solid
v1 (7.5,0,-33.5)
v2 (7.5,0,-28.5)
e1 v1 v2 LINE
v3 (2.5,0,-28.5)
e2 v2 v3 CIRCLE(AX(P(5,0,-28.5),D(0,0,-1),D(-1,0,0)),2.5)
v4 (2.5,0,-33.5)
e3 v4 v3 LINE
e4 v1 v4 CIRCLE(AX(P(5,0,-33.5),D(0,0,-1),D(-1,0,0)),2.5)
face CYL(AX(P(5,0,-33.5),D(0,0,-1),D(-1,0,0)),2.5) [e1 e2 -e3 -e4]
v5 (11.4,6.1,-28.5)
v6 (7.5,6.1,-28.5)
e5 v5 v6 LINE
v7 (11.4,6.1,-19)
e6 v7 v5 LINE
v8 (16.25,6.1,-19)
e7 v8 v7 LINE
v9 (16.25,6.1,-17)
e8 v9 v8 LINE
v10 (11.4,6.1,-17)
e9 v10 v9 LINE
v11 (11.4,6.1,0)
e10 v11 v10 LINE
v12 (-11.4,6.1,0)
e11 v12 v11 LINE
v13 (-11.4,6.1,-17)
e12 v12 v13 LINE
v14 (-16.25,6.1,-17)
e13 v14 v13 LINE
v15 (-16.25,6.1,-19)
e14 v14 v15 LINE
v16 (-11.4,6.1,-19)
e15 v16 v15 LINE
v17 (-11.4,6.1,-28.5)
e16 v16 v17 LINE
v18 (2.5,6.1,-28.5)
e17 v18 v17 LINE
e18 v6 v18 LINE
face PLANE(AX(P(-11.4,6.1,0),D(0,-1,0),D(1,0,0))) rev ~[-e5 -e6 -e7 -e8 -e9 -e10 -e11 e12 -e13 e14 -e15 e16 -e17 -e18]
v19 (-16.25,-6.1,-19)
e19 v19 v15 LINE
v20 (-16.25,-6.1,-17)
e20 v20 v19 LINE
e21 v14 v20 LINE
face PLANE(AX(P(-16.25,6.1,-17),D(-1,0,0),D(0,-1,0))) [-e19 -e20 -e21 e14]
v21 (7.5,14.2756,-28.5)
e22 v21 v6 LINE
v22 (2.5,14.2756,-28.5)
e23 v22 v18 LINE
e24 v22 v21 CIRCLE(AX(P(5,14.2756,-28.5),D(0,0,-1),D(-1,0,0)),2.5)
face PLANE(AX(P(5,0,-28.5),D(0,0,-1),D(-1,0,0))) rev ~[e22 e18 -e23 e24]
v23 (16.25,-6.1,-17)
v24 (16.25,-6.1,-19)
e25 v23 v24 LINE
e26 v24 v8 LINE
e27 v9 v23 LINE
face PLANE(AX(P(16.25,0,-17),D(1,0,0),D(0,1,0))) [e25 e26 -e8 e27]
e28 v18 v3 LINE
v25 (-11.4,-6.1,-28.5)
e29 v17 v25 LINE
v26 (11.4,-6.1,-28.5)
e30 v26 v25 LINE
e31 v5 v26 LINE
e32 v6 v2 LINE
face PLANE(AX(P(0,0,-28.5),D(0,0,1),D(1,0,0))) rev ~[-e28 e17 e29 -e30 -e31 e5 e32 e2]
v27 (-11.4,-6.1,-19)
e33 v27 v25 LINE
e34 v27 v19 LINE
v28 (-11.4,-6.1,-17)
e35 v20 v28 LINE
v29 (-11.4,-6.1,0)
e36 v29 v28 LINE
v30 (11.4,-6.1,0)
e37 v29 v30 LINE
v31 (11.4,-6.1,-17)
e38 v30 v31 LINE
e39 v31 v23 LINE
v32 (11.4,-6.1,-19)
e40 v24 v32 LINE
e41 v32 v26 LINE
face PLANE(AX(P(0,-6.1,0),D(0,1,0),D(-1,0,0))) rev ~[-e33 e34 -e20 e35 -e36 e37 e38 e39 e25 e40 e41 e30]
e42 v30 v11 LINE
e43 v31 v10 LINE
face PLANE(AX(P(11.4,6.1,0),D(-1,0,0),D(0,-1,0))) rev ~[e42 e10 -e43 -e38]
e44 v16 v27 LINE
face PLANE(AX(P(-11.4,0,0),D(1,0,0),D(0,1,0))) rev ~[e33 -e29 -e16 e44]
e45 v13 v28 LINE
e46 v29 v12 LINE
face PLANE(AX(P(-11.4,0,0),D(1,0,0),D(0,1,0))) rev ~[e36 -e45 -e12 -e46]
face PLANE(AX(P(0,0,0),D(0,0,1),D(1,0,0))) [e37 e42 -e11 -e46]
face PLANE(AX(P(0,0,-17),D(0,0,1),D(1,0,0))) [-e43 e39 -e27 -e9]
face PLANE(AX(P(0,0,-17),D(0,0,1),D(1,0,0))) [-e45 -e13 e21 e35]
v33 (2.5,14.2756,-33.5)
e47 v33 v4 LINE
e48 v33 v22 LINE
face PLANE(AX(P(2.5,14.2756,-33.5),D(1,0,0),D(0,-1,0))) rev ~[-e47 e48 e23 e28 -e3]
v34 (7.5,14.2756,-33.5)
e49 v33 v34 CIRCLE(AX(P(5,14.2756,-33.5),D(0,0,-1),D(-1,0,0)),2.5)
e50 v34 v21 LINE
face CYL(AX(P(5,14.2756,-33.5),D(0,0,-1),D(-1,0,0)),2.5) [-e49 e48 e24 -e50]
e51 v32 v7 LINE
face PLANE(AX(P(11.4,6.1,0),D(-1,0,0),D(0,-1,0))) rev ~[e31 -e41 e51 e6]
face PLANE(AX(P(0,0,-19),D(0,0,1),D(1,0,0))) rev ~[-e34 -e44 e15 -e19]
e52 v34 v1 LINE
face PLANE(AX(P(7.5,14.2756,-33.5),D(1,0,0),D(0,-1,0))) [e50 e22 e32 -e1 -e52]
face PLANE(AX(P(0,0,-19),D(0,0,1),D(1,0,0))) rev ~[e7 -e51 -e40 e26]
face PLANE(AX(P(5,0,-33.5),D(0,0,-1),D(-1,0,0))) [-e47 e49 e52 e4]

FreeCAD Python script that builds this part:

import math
import FreeCAD as App
import Part
import Sketcher

V = App.Vector
Q = App.Units.Quantity

doc = App.newDocument("Part")
body = doc.addObject("PartDesign::Body", "Body")

# Sketch on XY plane
sketch1 = body.newObject("Sketcher::SketchObject", "Sketch")
sketch1.AttachmentSupport = (doc.getObject("XY_Plane"), [""])
sketch1.MapMode = "FlatFace"
sketch1.addGeometry([
    Part.LineSegment(V(-11, 6, 0), V(-11, -6, 0)),
    Part.LineSegment(V(-11, -6, 0), V(11, -6, 0)),
    Part.LineSegment(V(11, -6, 0), V(11, 6, 0)),
    Part.LineSegment(V(11, 6, 0), V(-11, 6, 0)),
], False)
sketch1.addConstraint([
    Sketcher.Constraint("Coincident", 0, 2, 1, 1),
    Sketcher.Constraint("Coincident", 1, 2, 2, 1),
    Sketcher.Constraint("Coincident", 2, 2, 3, 1),
    Sketcher.Constraint("Coincident", 3, 2, 0, 1),
    Sketcher.Constraint("Vertical", 0),
    Sketcher.Constraint("Horizontal", 1),
    Sketcher.Constraint("Vertical", 2),
    Sketcher.Constraint("Horizontal", 3),
    Sketcher.Constraint("Symmetric", 0, 2, 2, 2, -1, 1),
    Sketcher.Constraint("DistanceX", 1, 1, 1, 2, Q("22.8 mm")),
    Sketcher.Constraint("DistanceY", 0, 2, 0, 1, Q("12.2 mm")),
])
pad1 = body.newObject("PartDesign::Pad", "Pad")
pad1.Profile = sketch1
pad1.Length = 28.5
pad1.Reversed = True

# Sketch on XY plane
sketch2 = body.newObject("Sketcher::SketchObject", "Sketch001")
sketch2.AttachmentSupport = (doc.getObject("XY_Plane"), [""])
sketch2.MapMode = "FlatFace"
sketch2.AttachmentOffset = App.Placement(V(0, 0, -17), App.Rotation())
sketch2.addGeometry([
    Part.LineSegment(V(16, 6, 0), V(-16, 6, 0)),
    Part.LineSegment(V(-16, 6, 0), V(-16, -6, 0)),
    Part.LineSegment(V(-16, -6, 0), V(16, -6, 0)),
    Part.LineSegment(V(16, -6, 0), V(16, 6, 0)),
], False)
sketch2.addConstraint([
    Sketcher.Constraint("Coincident", 0, 2, 1, 1),
    Sketcher.Constraint("Coincident", 1, 2, 2, 1),
    Sketcher.Constraint("Coincident", 2, 2, 3, 1),
    Sketcher.Constraint("Coincident", 3, 2, 0, 1),
    Sketcher.Constraint("Horizontal", 0),
    Sketcher.Constraint("Vertical", 1),
    Sketcher.Constraint("Horizontal", 2),
    Sketcher.Constraint("Vertical", 3),
    Sketcher.Constraint("Symmetric", 0, 2, 2, 2, -1, 1),
    Sketcher.Constraint("DistanceX", 0, 2, 0, 1, Q("32.5 mm")),
    Sketcher.Constraint("DistanceY", 1, 2, 1, 1, Q("12.2 mm")),
])
pad2 = body.newObject("PartDesign::Pad", "Pad001")
pad2.Profile = sketch2
pad2.Length = 2
pad2.Reversed = True

# Sketch on XY plane
sketch3 = body.newObject("Sketcher::SketchObject", "Sketch002")
sketch3.AttachmentSupport = (doc.getObject("XY_Plane"), [""])
sketch3.MapMode = "FlatFace"
sketch3.AttachmentOffset = App.Placement(V(0, 0, -33.5), App.Rotation())
sketch3.addGeometry([
    Part.ArcOfCircle(Part.Circle(V(5, 0, 0), V(0, 0, 1), 2.5), math.radians(180), math.radians(360)),
    Part.LineSegment(V(2.5, 0, 0), V(2.5, 14.3, 0)),
    Part.ArcOfCircle(Part.Circle(V(5, 14.3, 0), V(0, 0, 1), 2.5), math.radians(0), math.radians(180)),
    Part.LineSegment(V(7.5, 14.3, 0), V(7.5, 0, 0)),
], False)
sketch3.addConstraint([
    Sketcher.Constraint("Tangent", 0, 1, 1, 1),
    Sketcher.Constraint("Tangent", 1, 2, 2, 2),
    Sketcher.Constraint("Tangent", 2, 1, 3, 1),
    Sketcher.Constraint("Tangent", 3, 2, 0, 2),
    Sketcher.Constraint("Vertical", 1),
    Sketcher.Constraint("Vertical", 3),
    Sketcher.Constraint("PointOnObject", 0, 3, -1),
    Sketcher.Constraint("Radius", 0, Q("2.5 mm")),
    Sketcher.Constraint("DistanceX", -1, 1, 0, 1, Q("2.5 mm")),
    Sketcher.Constraint("DistanceY", 1, 1, 1, 2, Q("14.2756 mm")),
])
pad3 = body.newObject("PartDesign::Pad", "Pad002")
pad3.Profile = sketch3
pad3.Length = 5

doc.recompute()
